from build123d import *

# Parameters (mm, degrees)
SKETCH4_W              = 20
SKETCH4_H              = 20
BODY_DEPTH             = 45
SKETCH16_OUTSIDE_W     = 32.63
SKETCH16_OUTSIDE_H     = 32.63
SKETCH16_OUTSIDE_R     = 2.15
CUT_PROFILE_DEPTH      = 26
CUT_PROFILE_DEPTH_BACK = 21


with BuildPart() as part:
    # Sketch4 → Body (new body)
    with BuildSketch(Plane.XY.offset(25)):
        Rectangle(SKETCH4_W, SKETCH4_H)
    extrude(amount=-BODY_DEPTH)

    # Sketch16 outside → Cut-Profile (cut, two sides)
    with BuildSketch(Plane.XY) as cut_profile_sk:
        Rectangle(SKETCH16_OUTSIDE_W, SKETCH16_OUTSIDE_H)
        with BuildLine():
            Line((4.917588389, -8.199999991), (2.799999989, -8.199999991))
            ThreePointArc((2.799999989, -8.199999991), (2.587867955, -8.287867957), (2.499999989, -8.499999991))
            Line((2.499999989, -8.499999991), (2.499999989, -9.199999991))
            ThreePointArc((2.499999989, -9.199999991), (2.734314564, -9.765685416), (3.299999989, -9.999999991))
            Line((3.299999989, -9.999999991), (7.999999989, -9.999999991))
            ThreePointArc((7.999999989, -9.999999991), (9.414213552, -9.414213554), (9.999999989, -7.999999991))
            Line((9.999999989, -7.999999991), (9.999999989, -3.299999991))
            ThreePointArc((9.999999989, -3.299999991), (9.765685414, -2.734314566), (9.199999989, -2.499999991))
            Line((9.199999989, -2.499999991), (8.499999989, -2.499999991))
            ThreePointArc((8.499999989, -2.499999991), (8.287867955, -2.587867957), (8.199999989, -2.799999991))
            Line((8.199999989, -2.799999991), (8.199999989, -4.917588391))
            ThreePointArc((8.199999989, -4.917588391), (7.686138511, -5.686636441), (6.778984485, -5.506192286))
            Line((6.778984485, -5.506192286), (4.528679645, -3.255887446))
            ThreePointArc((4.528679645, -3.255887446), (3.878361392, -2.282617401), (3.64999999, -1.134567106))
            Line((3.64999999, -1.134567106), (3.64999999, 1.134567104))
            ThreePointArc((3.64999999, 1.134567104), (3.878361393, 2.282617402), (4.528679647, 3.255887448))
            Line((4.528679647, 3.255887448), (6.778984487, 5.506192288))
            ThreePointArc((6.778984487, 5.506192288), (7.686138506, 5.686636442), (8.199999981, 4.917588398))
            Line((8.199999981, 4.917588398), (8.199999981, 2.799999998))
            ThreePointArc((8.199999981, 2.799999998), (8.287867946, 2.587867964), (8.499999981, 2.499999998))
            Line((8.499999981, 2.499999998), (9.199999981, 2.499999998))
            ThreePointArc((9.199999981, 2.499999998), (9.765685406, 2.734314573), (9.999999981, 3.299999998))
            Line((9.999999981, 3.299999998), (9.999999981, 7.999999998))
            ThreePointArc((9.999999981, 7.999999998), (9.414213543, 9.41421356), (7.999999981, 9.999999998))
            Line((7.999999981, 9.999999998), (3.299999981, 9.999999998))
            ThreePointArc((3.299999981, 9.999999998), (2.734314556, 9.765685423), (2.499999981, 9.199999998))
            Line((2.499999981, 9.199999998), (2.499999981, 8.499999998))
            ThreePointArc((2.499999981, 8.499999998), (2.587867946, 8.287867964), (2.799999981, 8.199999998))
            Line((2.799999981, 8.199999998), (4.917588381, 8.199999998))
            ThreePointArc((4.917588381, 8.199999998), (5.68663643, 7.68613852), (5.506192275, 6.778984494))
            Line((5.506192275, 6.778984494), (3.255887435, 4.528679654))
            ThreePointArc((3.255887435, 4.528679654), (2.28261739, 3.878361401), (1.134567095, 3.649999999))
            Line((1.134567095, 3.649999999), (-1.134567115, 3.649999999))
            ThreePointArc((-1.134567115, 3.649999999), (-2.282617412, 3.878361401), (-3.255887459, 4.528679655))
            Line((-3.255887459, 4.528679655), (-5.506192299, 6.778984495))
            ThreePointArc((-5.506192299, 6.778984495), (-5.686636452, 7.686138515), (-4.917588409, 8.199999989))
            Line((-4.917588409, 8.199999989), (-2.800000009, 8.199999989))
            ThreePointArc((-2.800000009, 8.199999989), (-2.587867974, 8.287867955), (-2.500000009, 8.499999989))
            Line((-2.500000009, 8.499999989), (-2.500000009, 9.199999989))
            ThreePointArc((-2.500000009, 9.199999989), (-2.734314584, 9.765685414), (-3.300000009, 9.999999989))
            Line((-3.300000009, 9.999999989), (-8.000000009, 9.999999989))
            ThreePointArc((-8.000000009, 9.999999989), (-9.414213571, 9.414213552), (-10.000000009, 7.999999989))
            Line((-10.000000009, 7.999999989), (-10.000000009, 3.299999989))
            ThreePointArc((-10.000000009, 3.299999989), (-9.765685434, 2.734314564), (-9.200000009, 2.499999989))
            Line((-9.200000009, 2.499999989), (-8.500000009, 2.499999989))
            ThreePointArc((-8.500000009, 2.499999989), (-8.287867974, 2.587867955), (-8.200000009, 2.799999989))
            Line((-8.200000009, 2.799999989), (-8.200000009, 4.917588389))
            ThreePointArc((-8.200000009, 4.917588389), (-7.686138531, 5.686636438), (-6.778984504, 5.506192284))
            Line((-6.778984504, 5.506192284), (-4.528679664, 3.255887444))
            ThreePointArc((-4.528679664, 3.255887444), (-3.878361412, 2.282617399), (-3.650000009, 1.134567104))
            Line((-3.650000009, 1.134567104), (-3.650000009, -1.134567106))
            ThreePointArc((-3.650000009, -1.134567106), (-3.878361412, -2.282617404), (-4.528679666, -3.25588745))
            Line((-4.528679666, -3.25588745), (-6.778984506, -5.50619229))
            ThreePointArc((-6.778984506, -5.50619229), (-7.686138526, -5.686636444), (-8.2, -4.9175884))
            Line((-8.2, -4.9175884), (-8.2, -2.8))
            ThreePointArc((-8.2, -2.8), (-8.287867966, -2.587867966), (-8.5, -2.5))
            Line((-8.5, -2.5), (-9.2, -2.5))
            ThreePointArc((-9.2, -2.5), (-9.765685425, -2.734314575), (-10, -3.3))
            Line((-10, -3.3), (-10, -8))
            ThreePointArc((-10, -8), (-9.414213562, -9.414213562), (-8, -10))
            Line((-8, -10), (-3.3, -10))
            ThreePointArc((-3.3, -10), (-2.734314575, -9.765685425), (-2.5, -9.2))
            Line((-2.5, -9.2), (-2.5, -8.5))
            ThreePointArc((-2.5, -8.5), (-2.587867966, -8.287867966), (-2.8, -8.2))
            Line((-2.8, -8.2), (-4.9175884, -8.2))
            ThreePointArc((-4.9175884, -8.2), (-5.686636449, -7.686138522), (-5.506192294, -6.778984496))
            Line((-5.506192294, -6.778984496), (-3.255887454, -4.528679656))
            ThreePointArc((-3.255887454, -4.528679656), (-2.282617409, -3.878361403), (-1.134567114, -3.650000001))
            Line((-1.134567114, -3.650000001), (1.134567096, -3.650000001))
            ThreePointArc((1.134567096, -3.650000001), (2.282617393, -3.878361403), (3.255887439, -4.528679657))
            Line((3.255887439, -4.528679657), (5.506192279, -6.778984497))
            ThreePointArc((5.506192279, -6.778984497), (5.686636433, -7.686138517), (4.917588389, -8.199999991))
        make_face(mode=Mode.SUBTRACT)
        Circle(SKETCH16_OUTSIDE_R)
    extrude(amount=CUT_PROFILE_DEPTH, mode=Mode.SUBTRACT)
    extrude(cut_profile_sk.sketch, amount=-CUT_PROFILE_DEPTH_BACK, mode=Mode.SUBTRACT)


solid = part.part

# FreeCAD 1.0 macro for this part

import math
import FreeCAD as App
import Part
import Sketcher
from FreeCAD import Vector
Q = App.Units.Quantity


def add_polygon(sketch, points):
    """Adds a closed chain of lines whose ends are joined by coincident constraints."""
    first, n = sketch.GeometryCount, len(points)
    for a, b in zip(points, points[1:] + points[:1]):
        sketch.addGeometry(Part.LineSegment(App.Vector(*a, 0), App.Vector(*b, 0)), False)
    for i in range(n):
        sketch.addConstraint(Sketcher.Constraint("Coincident", first + i, 2, first + (i + 1) % n, 1))

doc = App.newDocument("Part")
params = doc.addObject("Spreadsheet::Sheet", "Params")
for row, (alias, value) in enumerate([
    ("sketch1_width", "20 mm"),
    ("pad1_length", "45 mm"),
    ("sketch2_radius", "3 mm"),
    ("sketch2_radius2", "2 mm"),
    ("sketch2_diameter", "4.3 mm"),
    ("sketch2_radius3", "0.3 mm"),
    ("sketch2_radius4", "0.8 mm"),
], start=1):
    params.set(f"A{row}", alias)
    params.set(f"B{row}", "=" + value)
    params.setAlias(f"B{row}", alias)

body = doc.addObject("PartDesign::Body", "Body")

sketch1 = body.newObject("Sketcher::SketchObject", "Sketch")
sketch1.AttachmentSupport = (doc.getObject("XY_Plane"), [""])
sketch1.MapMode = "FlatFace"
sketch1.AttachmentOffset = App.Placement(Vector(0, 0, 25), App.Rotation())
add_polygon(sketch1, [(-10, 10), (-10, -10), (10, -10), (10, 10)])
sketch1.addConstraint([
    Sketcher.Constraint("Vertical", 0),
    Sketcher.Constraint("Horizontal", 1),
    Sketcher.Constraint("Vertical", 2),
    Sketcher.Constraint("Horizontal", 3),
    Sketcher.Constraint("Symmetric", 0, 2, 2, 2, -1, 1),
    Sketcher.Constraint("Equal", 3, 0),
    Sketcher.Constraint("DistanceX", 1, 1, 1, 2, Q("20 mm")),
])
sketch1.setExpression("Constraints[10]", "Params.sketch1_width")
pad1 = body.newObject("PartDesign::Pad", "Pad")
pad1.Profile = sketch1
pad1.setExpression("Length", "Params.pad1_length")
pad1.Reversed = True

sketch2 = body.newObject("Sketcher::SketchObject", "Sketch001")
sketch2.AttachmentSupport = (doc.getObject("XY_Plane"), [""])
sketch2.MapMode = "FlatFace"
add_polygon(sketch2, [(-16.32, 16.32), (-16.32, -16.32), (16.32, -16.32), (16.32, 16.32)])
sketch2.addGeometry(Part.LineSegment(Vector(2.8, -8.2, 0), Vector(4.92, -8.2, 0)), False)
sketch2.addGeometry(Part.ArcOfCircle(Part.Circle(Vector(4.92, -7.37, 0), Vector(0, 0, 1), 0.83), math.radians(-90), math.radians(45)), False)
sketch2.addGeometry(Part.LineSegment(Vector(5.51, -6.78, 0), Vector(3.26, -4.53, 0)), False)
sketch2.addGeometry(Part.ArcOfCircle(Part.Circle(Vector(1.13, -6.65, 0), Vector(0, 0, 1), 3), math.radians(45), math.radians(90)), False)
sketch2.addGeometry(Part.LineSegment(Vector(1.13, -3.65, 0), Vector(-1.13, -3.65, 0)), False)
sketch2.addGeometry(Part.ArcOfCircle(Part.Circle(Vector(-1.13, -6.65, 0), Vector(0, 0, 1), 3), math.radians(90), math.radians(135)), False)
sketch2.addGeometry(Part.LineSegment(Vector(-3.26, -4.53, 0), Vector(-5.51, -6.78, 0)), False)
sketch2.addGeometry(Part.ArcOfCircle(Part.Circle(Vector(-4.92, -7.37, 0), Vector(0, 0, 1), 0.83), math.radians(135), math.radians(270)), False)
sketch2.addGeometry(Part.LineSegment(Vector(-4.92, -8.2, 0), Vector(-2.8, -8.2, 0)), False)
sketch2.addGeometry(Part.ArcOfCircle(Part.Circle(Vector(-2.8, -8.5, 0), Vector(0, 0, 1), 0.3), math.radians(0), math.radians(90)), False)
sketch2.addGeometry(Part.LineSegment(Vector(-2.5, -8.5, 0), Vector(-2.5, -9.2, 0)), False)
sketch2.addGeometry(Part.ArcOfCircle(Part.Circle(Vector(-3.3, -9.2, 0), Vector(0, 0, 1), 0.8), math.radians(-90), math.radians(0)), False)
sketch2.addGeometry(Part.LineSegment(Vector(-3.3, -10, 0), Vector(-8, -10, 0)), False)
sketch2.addGeometry(Part.ArcOfCircle(Part.Circle(Vector(-8, -8, 0), Vector(0, 0, 1), 2), math.radians(-180), math.radians(-90)), False)
sketch2.addGeometry(Part.LineSegment(Vector(-10, -8, 0), Vector(-10, -3.3, 0)), False)
sketch2.addGeometry(Part.ArcOfCircle(Part.Circle(Vector(-9.2, -3.3, 0), Vector(0, 0, 1), 0.8), math.radians(90), math.radians(180)), False)
sketch2.addGeometry(Part.LineSegment(Vector(-9.2, -2.5, 0), Vector(-8.5, -2.5, 0)), False)
sketch2.addGeometry(Part.ArcOfCircle(Part.Circle(Vector(-8.5, -2.8, 0), Vector(0, 0, 1), 0.3), math.radians(0), math.radians(90)), False)
sketch2.addGeometry(Part.LineSegment(Vector(-8.2, -2.8, 0), Vector(-8.2, -4.92, 0)), False)
sketch2.addGeometry(Part.ArcOfCircle(Part.Circle(Vector(-7.37, -4.92, 0), Vector(0, 0, 1), 0.83), math.radians(180), math.radians(315)), False)
sketch2.addGeometry(Part.LineSegment(Vector(-6.78, -5.51, 0), Vector(-4.53, -3.26, 0)), False)
sketch2.addGeometry(Part.ArcOfCircle(Part.Circle(Vector(-6.65, -1.13, 0), Vector(0, 0, 1), 3), math.radians(-45), math.radians(0)), False)
sketch2.addGeometry(Part.LineSegment(Vector(-3.65, -1.13, 0), Vector(-3.65, 1.13, 0)), False)
sketch2.addGeometry(Part.ArcOfCircle(Part.Circle(Vector(-6.65, 1.13, 0), Vector(0, 0, 1), 3), math.radians(0), math.radians(45)), False)
sketch2.addGeometry(Part.LineSegment(Vector(-4.53, 3.26, 0), Vector(-6.78, 5.51, 0)), False)
sketch2.addGeometry(Part.ArcOfCircle(Part.Circle(Vector(-7.37, 4.92, 0), Vector(0, 0, 1), 0.83), math.radians(45), math.radians(180)), False)
sketch2.addGeometry(Part.LineSegment(Vector(-8.2, 4.92, 0), Vector(-8.2, 2.8, 0)), False)
sketch2.addGeometry(Part.ArcOfCircle(Part.Circle(Vector(-8.5, 2.8, 0), Vector(0, 0, 1), 0.3), math.radians(-90), math.radians(0)), False)
sketch2.addGeometry(Part.LineSegment(Vector(-8.5, 2.5, 0), Vector(-9.2, 2.5, 0)), False)
sketch2.addGeometry(Part.ArcOfCircle(Part.Circle(Vector(-9.2, 3.3, 0), Vector(0, 0, 1), 0.8), math.radians(180), math.radians(270)), False)
sketch2.addGeometry(Part.LineSegment(Vector(-10, 3.3, 0), Vector(-10, 8, 0)), False)
sketch2.addGeometry(Part.ArcOfCircle(Part.Circle(Vector(-8, 8, 0), Vector(0, 0, 1), 2), math.radians(90), math.radians(180)), False)
sketch2.addGeometry(Part.LineSegment(Vector(-8, 10, 0), Vector(-3.3, 10, 0)), False)
sketch2.addGeometry(Part.ArcOfCircle(Part.Circle(Vector(-3.3, 9.2, 0), Vector(0, 0, 1), 0.8), math.radians(0), math.radians(90)), False)
sketch2.addGeometry(Part.LineSegment(Vector(-2.5, 9.2, 0), Vector(-2.5, 8.5, 0)), False)
sketch2.addGeometry(Part.ArcOfCircle(Part.Circle(Vector(-2.8, 8.5, 0), Vector(0, 0, 1), 0.3), math.radians(-90), math.radians(0)), False)
sketch2.addGeometry(Part.LineSegment(Vector(-2.8, 8.2, 0), Vector(-4.92, 8.2, 0)), False)
sketch2.addGeometry(Part.ArcOfCircle(Part.Circle(Vector(-4.92, 7.37, 0), Vector(0, 0, 1), 0.83), math.radians(90), math.radians(225)), False)
sketch2.addGeometry(Part.LineSegment(Vector(-5.51, 6.78, 0), Vector(-3.26, 4.53, 0)), False)
sketch2.addGeometry(Part.ArcOfCircle(Part.Circle(Vector(-1.13, 6.65, 0), Vector(0, 0, 1), 3), math.radians(-135), math.radians(-90)), False)
sketch2.addGeometry(Part.LineSegment(Vector(-1.13, 3.65, 0), Vector(1.13, 3.65, 0)), False)
sketch2.addGeometry(Part.ArcOfCircle(Part.Circle(Vector(1.13, 6.65, 0), Vector(0, 0, 1), 3), math.radians(-90), math.radians(-45)), False)
sketch2.addGeometry(Part.LineSegment(Vector(3.26, 4.53, 0), Vector(5.51, 6.78, 0)), False)
sketch2.addGeometry(Part.ArcOfCircle(Part.Circle(Vector(4.92, 7.37, 0), Vector(0, 0, 1), 0.83), math.radians(-45), math.radians(90)), False)
sketch2.addGeometry(Part.LineSegment(Vector(4.92, 8.2, 0), Vector(2.8, 8.2, 0)), False)
sketch2.addGeometry(Part.ArcOfCircle(Part.Circle(Vector(2.8, 8.5, 0), Vector(0, 0, 1), 0.3), math.radians(180), math.radians(270)), False)
sketch2.addGeometry(Part.LineSegment(Vector(2.5, 8.5, 0), Vector(2.5, 9.2, 0)), False)
sketch2.addGeometry(Part.ArcOfCircle(Part.Circle(Vector(3.3, 9.2, 0), Vector(0, 0, 1), 0.8), math.radians(90), math.radians(180)), False)
sketch2.addGeometry(Part.LineSegment(Vector(3.3, 10, 0), Vector(8, 10, 0)), False)
sketch2.addGeometry(Part.ArcOfCircle(Part.Circle(Vector(8, 8, 0), Vector(0, 0, 1), 2), math.radians(0), math.radians(90)), False)
sketch2.addGeometry(Part.LineSegment(Vector(10, 8, 0), Vector(10, 3.3, 0)), False)
sketch2.addGeometry(Part.ArcOfCircle(Part.Circle(Vector(9.2, 3.3, 0), Vector(0, 0, 1), 0.8), math.radians(-90), math.radians(0)), False)
sketch2.addGeometry(Part.LineSegment(Vector(9.2, 2.5, 0), Vector(8.5, 2.5, 0)), False)
sketch2.addGeometry(Part.ArcOfCircle(Part.Circle(Vector(8.5, 2.8, 0), Vector(0, 0, 1), 0.3), math.radians(180), math.radians(270)), False)
sketch2.addGeometry(Part.LineSegment(Vector(8.2, 2.8, 0), Vector(8.2, 4.92, 0)), False)
sketch2.addGeometry(Part.ArcOfCircle(Part.Circle(Vector(7.37, 4.92, 0), Vector(0, 0, 1), 0.83), math.radians(0), math.radians(135)), False)
sketch2.addGeometry(Part.LineSegment(Vector(6.78, 5.51, 0), Vector(4.53, 3.26, 0)), False)
sketch2.addGeometry(Part.ArcOfCircle(Part.Circle(Vector(6.65, 1.13, 0), Vector(0, 0, 1), 3), math.radians(135), math.radians(180)), False)
sketch2.addGeometry(Part.LineSegment(Vector(3.65, 1.13, 0), Vector(3.65, -1.13, 0)), False)
sketch2.addGeometry(Part.ArcOfCircle(Part.Circle(Vector(6.65, -1.13, 0), Vector(0, 0, 1), 3), math.radians(180), math.radians(225)), False)
sketch2.addGeometry(Part.LineSegment(Vector(4.53, -3.26, 0), Vector(6.78, -5.51, 0)), False)
sketch2.addGeometry(Part.ArcOfCircle(Part.Circle(Vector(7.37, -4.92, 0), Vector(0, 0, 1), 0.83), math.radians(-135), math.radians(0)), False)
sketch2.addGeometry(Part.LineSegment(Vector(8.2, -4.92, 0), Vector(8.2, -2.8, 0)), False)
sketch2.addGeometry(Part.ArcOfCircle(Part.Circle(Vector(8.5, -2.8, 0), Vector(0, 0, 1), 0.3), math.radians(90), math.radians(180)), False)
sketch2.addGeometry(Part.LineSegment(Vector(8.5, -2.5, 0), Vector(9.2, -2.5, 0)), False)
sketch2.addGeometry(Part.ArcOfCircle(Part.Circle(Vector(9.2, -3.3, 0), Vector(0, 0, 1), 0.8), math.radians(0), math.radians(90)), False)
sketch2.addGeometry(Part.LineSegment(Vector(10, -3.3, 0), Vector(10, -8, 0)), False)
sketch2.addGeometry(Part.ArcOfCircle(Part.Circle(Vector(8, -8, 0), Vector(0, 0, 1), 2), math.radians(-90), math.radians(0)), False)
sketch2.addGeometry(Part.LineSegment(Vector(8, -10, 0), Vector(3.3, -10, 0)), False)
sketch2.addGeometry(Part.ArcOfCircle(Part.Circle(Vector(3.3, -9.2, 0), Vector(0, 0, 1), 0.8), math.radians(180), math.radians(270)), False)
sketch2.addGeometry(Part.LineSegment(Vector(2.5, -9.2, 0), Vector(2.5, -8.5, 0)), False)
sketch2.addGeometry(Part.ArcOfCircle(Part.Circle(Vector(2.8, -8.5, 0), Vector(0, 0, 1), 0.3), math.radians(90), math.radians(180)), False)
sketch2.addGeometry(Part.Circle(Vector(0, 0, 0), Vector(0, 0, 1), 2.15), False)
sketch2.addConstraint([
    Sketcher.Constraint("Tangent", 4, 2, 5, 1),
    Sketcher.Constraint("Tangent", 5, 2, 6, 1),
    Sketcher.Constraint("Tangent", 6, 2, 7, 1),
    Sketcher.Constraint("Tangent", 7, 2, 8, 1),
    Sketcher.Constraint("Tangent", 8, 2, 9, 1),
    Sketcher.Constraint("Tangent", 9, 2, 10, 1),
    Sketcher.Constraint("Tangent", 10, 2, 11, 1),
    Sketcher.Constraint("Tangent", 11, 2, 12, 1),
    Sketcher.Constraint("Tangent", 12, 2, 13, 2),
    Sketcher.Constraint("Tangent", 13, 1, 14, 1),
    Sketcher.Constraint("Tangent", 14, 2, 15, 2),
    Sketcher.Constraint("Tangent", 15, 1, 16, 1),
    Sketcher.Constraint("Tangent", 16, 2, 17, 2),
    Sketcher.Constraint("Tangent", 17, 1, 18, 1),
    Sketcher.Constraint("Tangent", 18, 2, 19, 2),
    Sketcher.Constraint("Tangent", 19, 1, 20, 1),
    Sketcher.Constraint("Tangent", 20, 2, 21, 2),
    Sketcher.Constraint("Tangent", 21, 1, 22, 1),
    Sketcher.Constraint("Tangent", 22, 2, 23, 1),
    Sketcher.Constraint("Tangent", 23, 2, 24, 1),
    Sketcher.Constraint("Tangent", 24, 2, 25, 1),
    Sketcher.Constraint("Tangent", 25, 2, 26, 1),
    Sketcher.Constraint("Tangent", 26, 2, 27, 1),
    Sketcher.Constraint("Tangent", 27, 2, 28, 1),
    Sketcher.Constraint("Tangent", 28, 2, 29, 1),
    Sketcher.Constraint("Tangent", 29, 2, 30, 1),
    Sketcher.Constraint("Tangent", 30, 2, 31, 2),
    Sketcher.Constraint("Tangent", 31, 1, 32, 1),
    Sketcher.Constraint("Tangent", 32, 2, 33, 2),
    Sketcher.Constraint("Tangent", 33, 1, 34, 1),
    Sketcher.Constraint("Tangent", 34, 2, 35, 2),
    Sketcher.Constraint("Tangent", 35, 1, 36, 1),
    Sketcher.Constraint("Tangent", 36, 2, 37, 2),
    Sketcher.Constraint("Tangent", 37, 1, 38, 1),
    Sketcher.Constraint("Tangent", 38, 2, 39, 2),
    Sketcher.Constraint("Tangent", 39, 1, 40, 1),
    Sketcher.Constraint("Tangent", 40, 2, 41, 1),
    Sketcher.Constraint("Tangent", 41, 2, 42, 1),
    Sketcher.Constraint("Tangent", 42, 2, 43, 1),
    Sketcher.Constraint("Tangent", 43, 2, 44, 1),
    Sketcher.Constraint("Tangent", 44, 2, 45, 1),
    Sketcher.Constraint("Tangent", 45, 2, 46, 1),
    Sketcher.Constraint("Tangent", 46, 2, 47, 1),
    Sketcher.Constraint("Tangent", 47, 2, 48, 1),
    Sketcher.Constraint("Tangent", 48, 2, 49, 2),
    Sketcher.Constraint("Tangent", 49, 1, 50, 1),
    Sketcher.Constraint("Tangent", 50, 2, 51, 2),
    Sketcher.Constraint("Tangent", 51, 1, 52, 1),
    Sketcher.Constraint("Tangent", 52, 2, 53, 2),
    Sketcher.Constraint("Tangent", 53, 1, 54, 1),
    Sketcher.Constraint("Tangent", 54, 2, 55, 2),
    Sketcher.Constraint("Tangent", 55, 1, 56, 1),
    Sketcher.Constraint("Tangent", 56, 2, 57, 2),
    Sketcher.Constraint("Tangent", 57, 1, 58, 1),
    Sketcher.Constraint("Tangent", 58, 2, 59, 1),
    Sketcher.Constraint("Tangent", 59, 2, 60, 1),
    Sketcher.Constraint("Tangent", 60, 2, 61, 1),
    Sketcher.Constraint("Tangent", 61, 2, 62, 1),
    Sketcher.Constraint("Tangent", 62, 2, 63, 1),
    Sketcher.Constraint("Tangent", 63, 2, 64, 1),
    Sketcher.Constraint("Tangent", 64, 2, 65, 1),
    Sketcher.Constraint("Tangent", 65, 2, 66, 1),
    Sketcher.Constraint("Tangent", 66, 2, 67, 2),
    Sketcher.Constraint("Tangent", 67, 1, 68, 1),
    Sketcher.Constraint("Tangent", 68, 2, 69, 2),
    Sketcher.Constraint("Tangent", 69, 1, 70, 1),
    Sketcher.Constraint("Tangent", 70, 2, 71, 2),
    Sketcher.Constraint("Tangent", 71, 1, 72, 1),
    Sketcher.Constraint("Tangent", 72, 2, 73, 2),
    Sketcher.Constraint("Tangent", 73, 1, 74, 1),
    Sketcher.Constraint("Tangent", 74, 2, 75, 2),
    Sketcher.Constraint("Tangent", 75, 1, 4, 1),
    Sketcher.Constraint("Vertical", 0),
    Sketcher.Constraint("Horizontal", 1),
    Sketcher.Constraint("Vertical", 2),
    Sketcher.Constraint("Horizontal", 3),
    Sketcher.Constraint("Horizontal", 4),
    Sketcher.Constraint("Horizontal", 8),
    Sketcher.Constraint("Horizontal", 12),
    Sketcher.Constraint("Vertical", 14),
    Sketcher.Constraint("Horizontal", 16),
    Sketcher.Constraint("Vertical", 18),
    Sketcher.Constraint("Horizontal", 20),
    Sketcher.Constraint("Vertical", 22),
    Sketcher.Constraint("Vertical", 26),
    Sketcher.Constraint("Vertical", 30),
    Sketcher.Constraint("Horizontal", 32),
    Sketcher.Constraint("Vertical", 34),
    Sketcher.Constraint("Horizontal", 36),
    Sketcher.Constraint("Vertical", 38),
    Sketcher.Constraint("Horizontal", 40),
    Sketcher.Constraint("Horizontal", 44),
    Sketcher.Constraint("Horizontal", 48),
    Sketcher.Constraint("Vertical", 50),
    Sketcher.Constraint("Horizontal", 52),
    Sketcher.Constraint("Vertical", 54),
    Sketcher.Constraint("Horizontal", 56),
    Sketcher.Constraint("Vertical", 58),
    Sketcher.Constraint("Vertical", 62),
    Sketcher.Constraint("Vertical", 66),
    Sketcher.Constraint("Horizontal", 68),
    Sketcher.Constraint("Vertical", 70),
    Sketcher.Constraint("Horizontal", 72),
    Sketcher.Constraint("Vertical", 74),
    Sketcher.Constraint("Coincident", 76, 3, -1, 1),
    Sketcher.Constraint("Equal", 7, 9),
    Sketcher.Constraint("Equal", 5, 11),
    Sketcher.Constraint("Equal", 15, 19),
    Sketcher.Constraint("Equal", 13, 21),
    Sketcher.Constraint("Equal", 11, 23),
    Sketcher.Constraint("Equal", 9, 25),
    Sketcher.Constraint("Equal", 25, 27),
    Sketcher.Constraint("Equal", 23, 29),
    Sketcher.Constraint("Equal", 21, 31),
    Sketcher.Constraint("Equal", 19, 33),
    Sketcher.Constraint("Equal", 17, 35),
    Sketcher.Constraint("Equal", 33, 37),
    Sketcher.Constraint("Equal", 31, 39),
    Sketcher.Constraint("Equal", 29, 41),
    Sketcher.Constraint("Equal", 27, 43),
    Sketcher.Constraint("Equal", 43, 45),
    Sketcher.Constraint("Equal", 41, 47),
    Sketcher.Constraint("Equal", 39, 49),
    Sketcher.Constraint("Equal", 37, 51),
    Sketcher.Constraint("Equal", 35, 53),
    Sketcher.Constraint("Equal", 51, 55),
    Sketcher.Constraint("Equal", 49, 57),
    Sketcher.Constraint("Equal", 47, 59),
    Sketcher.Constraint("Equal", 45, 61),
    Sketcher.Constraint("Equal", 61, 63),
    Sketcher.Constraint("Equal", 59, 65),
    Sketcher.Constraint("Equal", 57, 67),
    Sketcher.Constraint("Equal", 55, 69),
    Sketcher.Constraint("Equal", 53, 71),
    Sketcher.Constraint("Equal", 69, 73),
    Sketcher.Constraint("Equal", 67, 75),
    Sketcher.Constraint("Symmetric", 5, 3, 41, 3, -1, 1),
    Sketcher.Constraint("Symmetric", 7, 3, 43, 3, -1, 1),
    Sketcher.Constraint("Symmetric", 11, 3, 47, 3, -1, 1),
    Sketcher.Constraint("Symmetric", 15, 3, 51, 3, -1, 1),
    Sketcher.Constraint("Symmetric", 19, 3, 55, 3, -1, 1),
    Sketcher.Constraint("Symmetric", 23, 3, 59, 3, -1, 1),
    Sketcher.Constraint("Symmetric", 25, 3, 61, 3, -1, 1),
    Sketcher.Constraint("Symmetric", 29, 3, 65, 3, -1, 1),
    Sketcher.Constraint("Symmetric", 33, 3, 69, 3, -1, 1),
    Sketcher.Constraint("Symmetric", 37, 3, 73, 3, -1, 1),
    Sketcher.Constraint("Symmetric", 0, 2, 2, 2, -1, 1),
    Sketcher.Constraint("Symmetric", 5, 3, 11, 3, -2),
    Sketcher.Constraint("Symmetric", 37, 3, 51, 3, -2),
    Sketcher.Constraint("Symmetric", 33, 3, 55, 3, -2),
    Sketcher.Constraint("Symmetric", 29, 3, 59, 3, -2),
    Sketcher.Constraint("Perpendicular", 6, 10),
    Sketcher.Constraint("Parallel", 10, 24),
    Sketcher.Constraint("Perpendicular", 24, 28),
    Sketcher.Constraint("Perpendicular", 42, 46),
    Sketcher.Constraint("Perpendicular", 60, 64),
    Sketcher.Constraint("Horizontal", 27, 3, 61, 3),
    Sketcher.Constraint("Equal", 3, 0),
    Sketcher.Constraint("Equal", 68, 14),
    Sketcher.Constraint("Equal", 72, 18),
    Sketcher.Constraint("Equal", 48, 22),
    Sketcher.Constraint("Equal", 44, 26),
    Sketcher.Constraint("Equal", 10, 24),
    Sketcher.Constraint("Radius", 7, Q("3 mm")),
    Sketcher.Constraint("Radius", 17, Q("2 mm")),
    Sketcher.Constraint("Diameter", 76, Q("4.3 mm")),
    Sketcher.Constraint("Radius", 13, Q("0.3 mm")),
    Sketcher.Constraint("Radius", 15, Q("0.8 mm")),
    Sketcher.Constraint("DistanceX", 16, 2, 16, 1, Q("4.7 mm")),
    Sketcher.Constraint("DistanceX", 20, 1, 20, 2, Q("0.7 mm")),
    Sketcher.Constraint("DistanceX", 17, 3, -1, 1, Q("8 mm")),
    Sketcher.Constraint("DistanceX", 1, 1, 1, 2, Q("32.63 mm")),
    Sketcher.Constraint("DistanceY", 7, 3, -1, 1, Q("6.65 mm")),
    Sketcher.Constraint("Radius", 5, Q("0.832412 mm")),
    Sketcher.Constraint("DistanceX", 4, 1, 4, 2, Q("2.117588 mm")),
])
sketch2.setExpression("Constraints[167]", "Params.sketch2_radius")
sketch2.setExpression("Constraints[168]", "Params.sketch2_radius2")
sketch2.setExpression("Constraints[169]", "Params.sketch2_diameter")
sketch2.setExpression("Constraints[170]", "Params.sketch2_radius3")
sketch2.setExpression("Constraints[171]", "Params.sketch2_radius4")
pocket1 = body.newObject("PartDesign::Pocket", "Pocket")
pocket1.Profile = sketch2
pocket1.Type = "ThroughAll"
pocket1.Midplane = True

doc.recompute()
